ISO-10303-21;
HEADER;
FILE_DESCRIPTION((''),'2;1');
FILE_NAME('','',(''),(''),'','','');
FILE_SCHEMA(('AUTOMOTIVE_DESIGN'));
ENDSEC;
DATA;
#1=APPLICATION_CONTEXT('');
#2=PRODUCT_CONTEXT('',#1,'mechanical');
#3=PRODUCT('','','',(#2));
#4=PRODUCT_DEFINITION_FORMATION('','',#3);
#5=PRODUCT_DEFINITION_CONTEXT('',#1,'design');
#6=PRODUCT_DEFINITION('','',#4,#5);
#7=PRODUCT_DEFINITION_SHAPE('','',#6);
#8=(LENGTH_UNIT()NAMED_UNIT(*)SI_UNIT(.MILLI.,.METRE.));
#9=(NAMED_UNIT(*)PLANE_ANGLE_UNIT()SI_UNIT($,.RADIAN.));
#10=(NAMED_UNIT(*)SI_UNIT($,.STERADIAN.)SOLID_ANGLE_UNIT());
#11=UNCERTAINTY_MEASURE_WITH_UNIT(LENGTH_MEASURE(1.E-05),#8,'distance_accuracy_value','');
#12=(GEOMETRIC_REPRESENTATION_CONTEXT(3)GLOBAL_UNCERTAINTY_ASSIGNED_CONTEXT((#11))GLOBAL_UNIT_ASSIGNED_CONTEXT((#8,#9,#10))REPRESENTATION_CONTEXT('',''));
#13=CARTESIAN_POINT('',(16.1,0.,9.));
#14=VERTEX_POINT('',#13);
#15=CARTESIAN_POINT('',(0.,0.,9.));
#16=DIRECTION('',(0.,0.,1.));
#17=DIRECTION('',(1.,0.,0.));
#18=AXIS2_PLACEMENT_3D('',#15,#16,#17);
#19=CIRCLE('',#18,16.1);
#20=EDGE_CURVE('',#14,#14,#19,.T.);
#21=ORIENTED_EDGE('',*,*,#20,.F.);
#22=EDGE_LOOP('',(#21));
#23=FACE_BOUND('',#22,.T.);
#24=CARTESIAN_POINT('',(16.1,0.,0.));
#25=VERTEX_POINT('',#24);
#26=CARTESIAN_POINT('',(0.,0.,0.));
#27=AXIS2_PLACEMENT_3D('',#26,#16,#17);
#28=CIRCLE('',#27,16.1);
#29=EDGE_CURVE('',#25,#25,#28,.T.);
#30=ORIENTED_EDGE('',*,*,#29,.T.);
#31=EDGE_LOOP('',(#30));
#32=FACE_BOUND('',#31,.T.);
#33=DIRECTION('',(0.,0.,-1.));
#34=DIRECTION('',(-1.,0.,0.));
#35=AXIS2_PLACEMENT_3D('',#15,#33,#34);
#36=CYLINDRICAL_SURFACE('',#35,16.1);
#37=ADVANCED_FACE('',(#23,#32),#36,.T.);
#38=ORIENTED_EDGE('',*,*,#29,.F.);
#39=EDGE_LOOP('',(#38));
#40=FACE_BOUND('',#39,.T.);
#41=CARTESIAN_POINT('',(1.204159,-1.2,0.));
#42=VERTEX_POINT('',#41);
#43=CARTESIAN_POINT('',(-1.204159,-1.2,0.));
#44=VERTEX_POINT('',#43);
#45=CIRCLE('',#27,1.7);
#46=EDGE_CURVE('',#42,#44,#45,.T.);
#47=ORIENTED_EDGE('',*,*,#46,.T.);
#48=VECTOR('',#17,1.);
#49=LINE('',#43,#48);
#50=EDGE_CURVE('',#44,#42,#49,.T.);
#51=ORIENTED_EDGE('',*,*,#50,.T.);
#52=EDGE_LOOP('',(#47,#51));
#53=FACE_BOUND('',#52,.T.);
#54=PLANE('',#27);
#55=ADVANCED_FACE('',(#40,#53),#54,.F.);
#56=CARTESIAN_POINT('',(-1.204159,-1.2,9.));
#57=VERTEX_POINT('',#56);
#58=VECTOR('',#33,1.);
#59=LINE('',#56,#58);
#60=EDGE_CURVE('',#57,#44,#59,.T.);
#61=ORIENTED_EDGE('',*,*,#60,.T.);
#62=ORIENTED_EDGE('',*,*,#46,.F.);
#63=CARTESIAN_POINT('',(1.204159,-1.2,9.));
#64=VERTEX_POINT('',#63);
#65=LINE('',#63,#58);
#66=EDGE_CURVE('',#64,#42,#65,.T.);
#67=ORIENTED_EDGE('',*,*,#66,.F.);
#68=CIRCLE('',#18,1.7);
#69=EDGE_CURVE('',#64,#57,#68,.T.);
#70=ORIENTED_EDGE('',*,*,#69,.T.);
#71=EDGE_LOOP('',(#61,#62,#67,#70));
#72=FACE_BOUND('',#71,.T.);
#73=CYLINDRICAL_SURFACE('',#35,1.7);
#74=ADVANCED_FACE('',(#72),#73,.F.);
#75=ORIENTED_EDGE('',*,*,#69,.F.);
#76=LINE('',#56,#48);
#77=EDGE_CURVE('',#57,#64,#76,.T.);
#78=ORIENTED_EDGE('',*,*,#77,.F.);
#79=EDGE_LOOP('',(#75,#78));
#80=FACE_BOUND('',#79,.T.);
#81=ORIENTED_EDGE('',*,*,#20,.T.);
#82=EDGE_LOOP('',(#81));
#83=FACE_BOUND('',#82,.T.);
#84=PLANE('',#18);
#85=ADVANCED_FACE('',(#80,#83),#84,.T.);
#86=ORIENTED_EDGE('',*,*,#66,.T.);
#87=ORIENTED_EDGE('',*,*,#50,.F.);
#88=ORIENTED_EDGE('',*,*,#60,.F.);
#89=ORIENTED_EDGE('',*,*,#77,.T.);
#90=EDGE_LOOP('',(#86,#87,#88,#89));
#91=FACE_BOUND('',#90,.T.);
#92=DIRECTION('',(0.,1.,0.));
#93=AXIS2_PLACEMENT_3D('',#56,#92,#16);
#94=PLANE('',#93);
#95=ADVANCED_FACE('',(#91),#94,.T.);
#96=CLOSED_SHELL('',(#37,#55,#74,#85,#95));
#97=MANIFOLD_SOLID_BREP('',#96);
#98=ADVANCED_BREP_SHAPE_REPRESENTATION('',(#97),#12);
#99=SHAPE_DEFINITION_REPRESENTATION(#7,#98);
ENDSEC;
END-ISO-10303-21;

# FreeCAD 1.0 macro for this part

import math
import FreeCAD as App
import Part
import Sketcher

doc = App.newDocument("Part")
params = doc.addObject("Spreadsheet::Sheet", "Params")
for row, (alias, value) in enumerate([
    ("sketch1_diameter", "32.2 mm"),
    ("sketch1_radius", "1.7 mm"),
    ("pad1_length", "9 mm"),
], start=1):
    params.set(f"A{row}", alias)
    params.set(f"B{row}", "=" + value)
    params.setAlias(f"B{row}", alias)

body = doc.addObject("PartDesign::Body", "Body")

# Sketch on XY plane
sketch1 = doc.addObject("Sketcher::SketchObject", "Sketch")
body.addObject(sketch1)
sketch1.AttachmentSupport = (doc.XY_Plane, [""])
sketch1.MapMode = "FlatFace"
sketch1.addGeometry(Part.Circle(App.Vector(0, 0, 0), App.Vector(0, 0, 1), 16.1), False)
sketch1.addGeometry(Part.LineSegment(App.Vector(1.2, -1.2, 0), App.Vector(-1.2, -1.2, 0)), False)
sketch1.addGeometry(Part.ArcOfCircle(Part.Circle(App.Vector(0, 0, 0), App.Vector(0, 0, 1), 1.7), math.radians(-45), math.radians(225)), False)
sketch1.addConstraint(Sketcher.Constraint("Coincident", 1, 1, 2, 1))
sketch1.addConstraint(Sketcher.Constraint("Coincident", 2, 2, 1, 2))
sketch1.addConstraint(Sketcher.Constraint("Horizontal", 1))
sketch1.addConstraint(Sketcher.Constraint("Coincident", 0, 3, -1, 1))
sketch1.addConstraint(Sketcher.Constraint("Coincident", 2, 3, -1, 1))
sketch1.addConstraint(Sketcher.Constraint("Diameter", 0, 32.2))
sketch1.addConstraint(Sketcher.Constraint("Radius", 2, 1.7))
sketch1.addConstraint(Sketcher.Constraint("DistanceY", 1, 1, -1, 1, 1.2))
sketch1.setExpression("Constraints[5]", "Params.sketch1_diameter")
sketch1.setExpression("Constraints[6]", "Params.sketch1_radius")
pad1 = doc.addObject("PartDesign::Pad", "Pad")
body.addObject(pad1)
pad1.Profile = sketch1
pad1.setExpression("Length", "Params.pad1_length")

doc.recompute()
